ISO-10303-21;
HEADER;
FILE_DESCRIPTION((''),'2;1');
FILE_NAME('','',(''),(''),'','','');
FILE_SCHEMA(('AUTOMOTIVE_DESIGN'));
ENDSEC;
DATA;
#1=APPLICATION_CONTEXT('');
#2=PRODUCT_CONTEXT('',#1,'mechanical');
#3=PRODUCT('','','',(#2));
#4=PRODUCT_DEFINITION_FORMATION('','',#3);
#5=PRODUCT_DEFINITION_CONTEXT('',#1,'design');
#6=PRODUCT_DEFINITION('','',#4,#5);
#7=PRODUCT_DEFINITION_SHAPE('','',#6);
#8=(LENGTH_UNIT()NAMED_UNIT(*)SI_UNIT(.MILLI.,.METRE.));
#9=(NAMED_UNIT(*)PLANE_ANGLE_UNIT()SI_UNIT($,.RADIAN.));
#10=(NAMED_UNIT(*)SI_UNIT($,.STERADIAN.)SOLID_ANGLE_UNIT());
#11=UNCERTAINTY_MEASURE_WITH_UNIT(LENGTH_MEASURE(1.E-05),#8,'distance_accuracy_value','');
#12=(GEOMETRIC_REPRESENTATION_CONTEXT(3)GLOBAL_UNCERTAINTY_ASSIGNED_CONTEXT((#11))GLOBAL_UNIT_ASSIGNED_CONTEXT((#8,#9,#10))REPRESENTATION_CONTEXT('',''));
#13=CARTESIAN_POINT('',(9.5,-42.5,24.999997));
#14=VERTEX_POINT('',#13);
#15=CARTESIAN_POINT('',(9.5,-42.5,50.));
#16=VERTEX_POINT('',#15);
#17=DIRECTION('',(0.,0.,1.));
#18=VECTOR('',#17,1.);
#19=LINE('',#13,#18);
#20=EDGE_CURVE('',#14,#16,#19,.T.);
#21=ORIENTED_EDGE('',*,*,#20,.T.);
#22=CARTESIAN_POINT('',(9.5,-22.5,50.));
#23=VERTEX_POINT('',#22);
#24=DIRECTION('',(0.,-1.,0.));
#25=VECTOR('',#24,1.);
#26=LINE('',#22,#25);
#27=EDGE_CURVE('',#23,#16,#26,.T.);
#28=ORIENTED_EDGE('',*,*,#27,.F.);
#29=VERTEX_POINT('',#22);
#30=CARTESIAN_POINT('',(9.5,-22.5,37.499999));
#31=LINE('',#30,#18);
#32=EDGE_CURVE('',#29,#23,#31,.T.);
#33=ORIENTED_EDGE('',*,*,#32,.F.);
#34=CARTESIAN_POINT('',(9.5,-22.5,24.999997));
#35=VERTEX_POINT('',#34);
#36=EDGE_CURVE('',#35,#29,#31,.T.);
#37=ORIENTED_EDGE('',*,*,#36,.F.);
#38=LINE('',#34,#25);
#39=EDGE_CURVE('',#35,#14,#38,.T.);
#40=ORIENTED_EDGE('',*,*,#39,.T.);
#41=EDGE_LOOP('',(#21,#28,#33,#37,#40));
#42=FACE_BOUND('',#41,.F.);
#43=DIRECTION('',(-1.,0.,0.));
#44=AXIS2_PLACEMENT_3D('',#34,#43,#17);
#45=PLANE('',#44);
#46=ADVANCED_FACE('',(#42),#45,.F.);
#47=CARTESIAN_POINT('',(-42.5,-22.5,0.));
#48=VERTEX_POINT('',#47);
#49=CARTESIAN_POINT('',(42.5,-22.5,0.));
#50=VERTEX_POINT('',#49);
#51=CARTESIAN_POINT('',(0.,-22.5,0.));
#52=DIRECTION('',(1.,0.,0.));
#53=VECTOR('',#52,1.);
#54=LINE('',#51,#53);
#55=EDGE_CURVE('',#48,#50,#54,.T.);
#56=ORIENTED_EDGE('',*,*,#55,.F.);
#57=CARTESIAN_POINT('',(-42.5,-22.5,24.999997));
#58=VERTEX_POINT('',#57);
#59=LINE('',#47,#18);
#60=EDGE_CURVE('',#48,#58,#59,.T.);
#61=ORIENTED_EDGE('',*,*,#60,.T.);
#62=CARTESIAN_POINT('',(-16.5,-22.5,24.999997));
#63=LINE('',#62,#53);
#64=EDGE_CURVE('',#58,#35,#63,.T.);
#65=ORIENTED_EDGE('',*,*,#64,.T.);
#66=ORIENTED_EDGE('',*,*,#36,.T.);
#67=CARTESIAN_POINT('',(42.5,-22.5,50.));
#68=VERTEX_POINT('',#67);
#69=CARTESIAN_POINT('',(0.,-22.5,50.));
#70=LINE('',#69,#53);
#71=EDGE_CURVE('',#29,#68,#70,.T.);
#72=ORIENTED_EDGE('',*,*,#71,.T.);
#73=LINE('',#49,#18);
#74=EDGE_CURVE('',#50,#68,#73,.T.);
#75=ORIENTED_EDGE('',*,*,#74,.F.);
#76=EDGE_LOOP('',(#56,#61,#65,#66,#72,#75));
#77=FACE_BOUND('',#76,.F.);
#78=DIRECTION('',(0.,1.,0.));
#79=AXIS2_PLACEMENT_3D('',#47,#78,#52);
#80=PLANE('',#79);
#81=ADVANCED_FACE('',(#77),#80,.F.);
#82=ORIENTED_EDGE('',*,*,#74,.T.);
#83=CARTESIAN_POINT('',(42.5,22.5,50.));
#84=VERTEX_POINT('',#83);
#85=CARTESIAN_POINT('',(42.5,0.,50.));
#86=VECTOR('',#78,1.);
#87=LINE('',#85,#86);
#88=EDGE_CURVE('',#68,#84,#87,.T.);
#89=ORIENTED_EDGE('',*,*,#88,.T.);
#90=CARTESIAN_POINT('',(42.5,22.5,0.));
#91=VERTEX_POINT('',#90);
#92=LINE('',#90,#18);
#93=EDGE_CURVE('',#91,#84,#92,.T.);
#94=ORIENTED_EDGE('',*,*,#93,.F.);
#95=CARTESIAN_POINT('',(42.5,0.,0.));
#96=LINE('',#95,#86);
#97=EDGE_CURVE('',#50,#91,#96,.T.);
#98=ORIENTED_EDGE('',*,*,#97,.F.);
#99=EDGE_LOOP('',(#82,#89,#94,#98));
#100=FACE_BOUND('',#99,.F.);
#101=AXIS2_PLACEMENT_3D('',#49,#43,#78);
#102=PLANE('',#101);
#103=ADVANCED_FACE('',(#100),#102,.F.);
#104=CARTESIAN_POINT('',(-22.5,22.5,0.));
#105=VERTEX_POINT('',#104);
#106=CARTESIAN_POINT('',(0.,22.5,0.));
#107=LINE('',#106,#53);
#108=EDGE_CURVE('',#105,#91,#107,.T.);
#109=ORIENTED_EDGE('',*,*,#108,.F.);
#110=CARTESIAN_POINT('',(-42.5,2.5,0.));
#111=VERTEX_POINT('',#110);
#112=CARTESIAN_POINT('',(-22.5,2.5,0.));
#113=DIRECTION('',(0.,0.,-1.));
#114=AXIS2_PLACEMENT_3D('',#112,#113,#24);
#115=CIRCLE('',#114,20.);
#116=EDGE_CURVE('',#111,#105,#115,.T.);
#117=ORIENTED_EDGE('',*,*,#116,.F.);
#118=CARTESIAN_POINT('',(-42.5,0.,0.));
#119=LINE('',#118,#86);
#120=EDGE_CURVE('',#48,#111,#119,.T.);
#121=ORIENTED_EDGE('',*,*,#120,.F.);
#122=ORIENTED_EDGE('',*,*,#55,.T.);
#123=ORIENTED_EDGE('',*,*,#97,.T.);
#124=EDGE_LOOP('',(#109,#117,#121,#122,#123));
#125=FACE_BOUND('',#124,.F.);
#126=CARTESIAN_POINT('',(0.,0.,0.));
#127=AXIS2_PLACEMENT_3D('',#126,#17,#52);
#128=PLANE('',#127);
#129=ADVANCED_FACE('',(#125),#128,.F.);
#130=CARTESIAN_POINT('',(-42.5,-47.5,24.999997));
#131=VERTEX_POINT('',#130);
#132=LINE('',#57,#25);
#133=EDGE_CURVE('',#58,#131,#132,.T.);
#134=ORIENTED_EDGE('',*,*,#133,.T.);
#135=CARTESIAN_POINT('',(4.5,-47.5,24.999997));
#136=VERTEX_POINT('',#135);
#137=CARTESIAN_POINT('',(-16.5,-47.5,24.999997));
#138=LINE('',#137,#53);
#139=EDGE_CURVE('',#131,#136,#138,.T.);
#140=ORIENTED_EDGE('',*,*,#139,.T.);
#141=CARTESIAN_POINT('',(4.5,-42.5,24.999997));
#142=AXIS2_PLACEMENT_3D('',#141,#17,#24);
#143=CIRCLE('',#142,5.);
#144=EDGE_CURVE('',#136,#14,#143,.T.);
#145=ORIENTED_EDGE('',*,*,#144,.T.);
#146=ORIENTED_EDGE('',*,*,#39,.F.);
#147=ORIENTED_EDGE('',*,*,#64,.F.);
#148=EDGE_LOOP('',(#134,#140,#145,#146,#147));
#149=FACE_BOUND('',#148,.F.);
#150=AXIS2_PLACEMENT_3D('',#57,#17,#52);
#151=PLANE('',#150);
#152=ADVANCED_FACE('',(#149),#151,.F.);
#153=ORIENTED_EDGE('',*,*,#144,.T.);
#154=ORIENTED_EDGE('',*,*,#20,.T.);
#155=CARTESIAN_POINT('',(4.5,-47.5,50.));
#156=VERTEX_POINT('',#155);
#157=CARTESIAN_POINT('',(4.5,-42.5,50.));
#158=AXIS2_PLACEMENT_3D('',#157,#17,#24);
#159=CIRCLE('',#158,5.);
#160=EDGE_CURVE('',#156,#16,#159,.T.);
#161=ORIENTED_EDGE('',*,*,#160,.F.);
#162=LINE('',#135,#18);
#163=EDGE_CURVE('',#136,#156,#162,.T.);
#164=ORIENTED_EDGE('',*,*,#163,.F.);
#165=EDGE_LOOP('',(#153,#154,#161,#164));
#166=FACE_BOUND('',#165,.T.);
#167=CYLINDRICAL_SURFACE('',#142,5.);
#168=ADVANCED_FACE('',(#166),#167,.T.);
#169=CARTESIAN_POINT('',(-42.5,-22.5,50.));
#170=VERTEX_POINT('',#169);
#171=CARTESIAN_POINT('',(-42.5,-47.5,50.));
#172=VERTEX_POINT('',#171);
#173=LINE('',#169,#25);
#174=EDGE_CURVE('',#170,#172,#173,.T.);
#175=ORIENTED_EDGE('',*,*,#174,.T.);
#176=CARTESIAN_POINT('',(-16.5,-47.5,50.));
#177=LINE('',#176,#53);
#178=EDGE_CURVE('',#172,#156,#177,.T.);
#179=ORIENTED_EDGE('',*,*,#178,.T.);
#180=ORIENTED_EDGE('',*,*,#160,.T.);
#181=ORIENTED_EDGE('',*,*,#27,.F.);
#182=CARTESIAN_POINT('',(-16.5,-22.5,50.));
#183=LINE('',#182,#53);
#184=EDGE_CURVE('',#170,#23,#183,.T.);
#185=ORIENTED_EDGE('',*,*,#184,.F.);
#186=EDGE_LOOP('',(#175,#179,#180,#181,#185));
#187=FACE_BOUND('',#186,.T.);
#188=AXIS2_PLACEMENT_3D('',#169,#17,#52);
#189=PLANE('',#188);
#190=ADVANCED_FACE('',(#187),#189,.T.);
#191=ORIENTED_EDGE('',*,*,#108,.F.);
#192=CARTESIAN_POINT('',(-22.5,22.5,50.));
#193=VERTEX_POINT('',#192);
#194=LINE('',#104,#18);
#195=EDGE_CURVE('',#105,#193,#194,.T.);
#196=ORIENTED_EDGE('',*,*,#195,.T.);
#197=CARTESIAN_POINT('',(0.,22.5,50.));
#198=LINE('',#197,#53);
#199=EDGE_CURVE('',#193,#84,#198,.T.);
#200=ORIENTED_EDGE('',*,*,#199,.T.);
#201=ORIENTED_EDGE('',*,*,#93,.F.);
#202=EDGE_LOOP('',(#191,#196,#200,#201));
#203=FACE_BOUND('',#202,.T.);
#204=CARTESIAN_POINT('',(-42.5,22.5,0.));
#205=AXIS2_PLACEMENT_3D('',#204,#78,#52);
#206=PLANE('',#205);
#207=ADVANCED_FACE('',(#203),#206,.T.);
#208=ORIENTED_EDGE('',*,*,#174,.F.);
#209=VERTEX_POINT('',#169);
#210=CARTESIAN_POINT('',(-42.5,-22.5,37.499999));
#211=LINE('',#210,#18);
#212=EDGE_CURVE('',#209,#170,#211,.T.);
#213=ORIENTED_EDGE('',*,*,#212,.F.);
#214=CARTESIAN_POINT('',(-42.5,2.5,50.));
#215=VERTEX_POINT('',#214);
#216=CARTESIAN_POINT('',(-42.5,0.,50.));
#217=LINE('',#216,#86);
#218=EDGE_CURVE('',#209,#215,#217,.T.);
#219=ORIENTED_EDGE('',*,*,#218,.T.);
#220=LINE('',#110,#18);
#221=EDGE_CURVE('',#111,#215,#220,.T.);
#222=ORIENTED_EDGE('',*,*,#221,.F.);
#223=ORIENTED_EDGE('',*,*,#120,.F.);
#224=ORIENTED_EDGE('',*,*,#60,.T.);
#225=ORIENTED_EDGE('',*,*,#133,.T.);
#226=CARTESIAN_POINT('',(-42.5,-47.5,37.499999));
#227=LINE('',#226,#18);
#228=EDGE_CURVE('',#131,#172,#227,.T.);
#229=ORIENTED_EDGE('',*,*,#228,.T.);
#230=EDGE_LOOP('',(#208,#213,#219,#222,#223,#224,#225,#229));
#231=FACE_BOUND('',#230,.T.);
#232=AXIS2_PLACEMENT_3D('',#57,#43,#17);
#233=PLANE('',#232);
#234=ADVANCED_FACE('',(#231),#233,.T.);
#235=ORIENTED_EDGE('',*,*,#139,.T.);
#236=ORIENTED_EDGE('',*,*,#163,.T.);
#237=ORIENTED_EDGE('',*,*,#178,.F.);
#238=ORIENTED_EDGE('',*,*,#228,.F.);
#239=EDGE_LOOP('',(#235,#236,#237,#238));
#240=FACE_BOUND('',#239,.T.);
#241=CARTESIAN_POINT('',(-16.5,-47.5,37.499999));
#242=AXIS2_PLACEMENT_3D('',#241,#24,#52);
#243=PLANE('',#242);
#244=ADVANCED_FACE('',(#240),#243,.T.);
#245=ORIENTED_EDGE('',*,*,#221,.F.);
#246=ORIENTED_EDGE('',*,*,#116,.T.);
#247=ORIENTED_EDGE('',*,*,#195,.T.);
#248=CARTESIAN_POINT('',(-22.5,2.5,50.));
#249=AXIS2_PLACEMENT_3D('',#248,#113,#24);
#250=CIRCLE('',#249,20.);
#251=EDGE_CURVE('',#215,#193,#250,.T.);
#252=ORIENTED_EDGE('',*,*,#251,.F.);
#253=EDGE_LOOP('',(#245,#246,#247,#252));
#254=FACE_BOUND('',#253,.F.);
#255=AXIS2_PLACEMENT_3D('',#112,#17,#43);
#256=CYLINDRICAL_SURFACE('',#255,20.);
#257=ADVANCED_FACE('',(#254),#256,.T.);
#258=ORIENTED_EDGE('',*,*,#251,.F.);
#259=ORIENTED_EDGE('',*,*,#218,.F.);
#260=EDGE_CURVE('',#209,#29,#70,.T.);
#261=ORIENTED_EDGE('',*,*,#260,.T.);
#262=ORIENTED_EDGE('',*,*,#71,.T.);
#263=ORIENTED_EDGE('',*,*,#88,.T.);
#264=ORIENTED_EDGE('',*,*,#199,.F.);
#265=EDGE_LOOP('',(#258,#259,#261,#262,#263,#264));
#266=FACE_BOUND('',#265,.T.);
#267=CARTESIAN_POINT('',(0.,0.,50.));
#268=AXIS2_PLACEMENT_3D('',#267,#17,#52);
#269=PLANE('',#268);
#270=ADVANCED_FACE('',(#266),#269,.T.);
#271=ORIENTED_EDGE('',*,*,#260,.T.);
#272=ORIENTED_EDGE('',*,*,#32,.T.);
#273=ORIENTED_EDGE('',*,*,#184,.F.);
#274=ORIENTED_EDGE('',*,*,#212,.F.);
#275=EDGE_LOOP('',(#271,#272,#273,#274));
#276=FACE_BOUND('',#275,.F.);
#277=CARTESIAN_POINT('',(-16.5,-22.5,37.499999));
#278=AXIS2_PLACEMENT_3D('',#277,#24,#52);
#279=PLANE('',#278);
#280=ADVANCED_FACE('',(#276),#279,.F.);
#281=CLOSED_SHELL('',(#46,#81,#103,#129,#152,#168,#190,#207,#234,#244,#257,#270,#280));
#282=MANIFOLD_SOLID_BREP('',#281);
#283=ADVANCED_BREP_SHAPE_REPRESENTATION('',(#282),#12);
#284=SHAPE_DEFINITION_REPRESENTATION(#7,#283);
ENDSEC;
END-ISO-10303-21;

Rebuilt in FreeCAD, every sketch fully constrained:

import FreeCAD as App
import Part
import Sketcher
from FreeCAD import Vector
Q = App.Units.Quantity


def edges_at(feature, points):
    """Names of the edges that pass closest to the given points."""
    edges = feature.Shape.Edges
    near = lambda p: min(range(len(edges)), key=lambda i: edges[i].distToShape(Part.Vertex(*p))[0])
    return sorted({f"Edge{near(p) + 1}" for p in points})

doc = App.newDocument("Part")
body = doc.addObject("PartDesign::Body", "Body")

# Sketch on XY plane
sketch1 = body.newObject("Sketcher::SketchObject", "Sketch")
sketch1.AttachmentSupport = (doc.getObject("XY_Plane"), [""])
sketch1.MapMode = "FlatFace"
sketch1.addGeometry(Part.LineSegment(Vector(-42.5, 22.5, 0), Vector(-42.5, -22.5, 0)), False)
sketch1.addGeometry(Part.LineSegment(Vector(-42.5, -22.5, 0), Vector(42.5, -22.5, 0)), False)
sketch1.addGeometry(Part.LineSegment(Vector(42.5, -22.5, 0), Vector(42.5, 22.5, 0)), False)
sketch1.addGeometry(Part.LineSegment(Vector(42.5, 22.5, 0), Vector(-42.5, 22.5, 0)), False)
sketch1.addConstraint(Sketcher.Constraint("Coincident", 0, 2, 1, 1))
sketch1.addConstraint(Sketcher.Constraint("Coincident", 1, 2, 2, 1))
sketch1.addConstraint(Sketcher.Constraint("Coincident", 2, 2, 3, 1))
sketch1.addConstraint(Sketcher.Constraint("Coincident", 3, 2, 0, 1))
sketch1.addConstraint(Sketcher.Constraint("Vertical", 0))
sketch1.addConstraint(Sketcher.Constraint("Horizontal", 1))
sketch1.addConstraint(Sketcher.Constraint("Vertical", 2))
sketch1.addConstraint(Sketcher.Constraint("Horizontal", 3))
sketch1.addConstraint(Sketcher.Constraint("Symmetric", 0, 2, 2, 2, -1, 1))
sketch1.addConstraint(Sketcher.Constraint("DistanceX", 1, 1, 1, 2, Q("85 mm")))
sketch1.addConstraint(Sketcher.Constraint("DistanceY", 0, 2, 0, 1, Q("45 mm")))
pad1 = body.newObject("PartDesign::Pad", "Pad")
pad1.Profile = sketch1
pad1.Length = 50
doc.recompute()

fillet = body.newObject("PartDesign::Fillet", "Fillet")
fillet.Base = (pad1, edges_at(pad1, [(-42.5, 22.5, 25)]))
fillet.Radius = 20

# Sketch on XZ plane
sketch2 = body.newObject("Sketcher::SketchObject", "Sketch001")
sketch2.AttachmentSupport = (doc.getObject("XZ_Plane"), [""])
sketch2.MapMode = "FlatFace"
sketch2.AttachmentOffset = App.Placement(Vector(0, 0, 22.5), App.Rotation())
sketch2.addGeometry(Part.LineSegment(Vector(-42.5, 50, 0), Vector(-42.5, 24.999997, 0)), False)
sketch2.addGeometry(Part.LineSegment(Vector(-42.5, 24.999997, 0), Vector(9.5, 24.999997, 0)), False)
sketch2.addGeometry(Part.LineSegment(Vector(9.5, 24.999997, 0), Vector(9.5, 50, 0)), False)
sketch2.addGeometry(Part.LineSegment(Vector(9.5, 50, 0), Vector(-42.5, 50, 0)), False)
sketch2.addConstraint(Sketcher.Constraint("Coincident", 0, 2, 1, 1))
sketch2.addConstraint(Sketcher.Constraint("Coincident", 1, 2, 2, 1))
sketch2.addConstraint(Sketcher.Constraint("Coincident", 2, 2, 3, 1))
sketch2.addConstraint(Sketcher.Constraint("Coincident", 3, 2, 0, 1))
sketch2.addConstraint(Sketcher.Constraint("Vertical", 0))
sketch2.addConstraint(Sketcher.Constraint("Horizontal", 1))
sketch2.addConstraint(Sketcher.Constraint("Vertical", 2))
sketch2.addConstraint(Sketcher.Constraint("Horizontal", 3))
sketch2.addConstraint(Sketcher.Constraint("DistanceX", 1, 1, 1, 2, Q("52 mm")))
sketch2.addConstraint(Sketcher.Constraint("DistanceY", -1, 1, 2, 2, Q("50 mm")))
sketch2.addConstraint(Sketcher.Constraint("DistanceX", 0, 2, -1, 1, Q("42.5 mm")))
sketch2.addConstraint(Sketcher.Constraint("DistanceY", 0, 2, 0, 1, Q("25.000003 mm")))
pad2 = body.newObject("PartDesign::Pad", "Pad001")
pad2.Profile = sketch2
pad2.Length = 25
doc.recompute()

fillet2 = body.newObject("PartDesign::Fillet", "Fillet001")
fillet2.Base = (pad2, edges_at(pad2, [(9.5, -47.5, 37.5)]))
fillet2.Radius = 5

doc.recompute()
